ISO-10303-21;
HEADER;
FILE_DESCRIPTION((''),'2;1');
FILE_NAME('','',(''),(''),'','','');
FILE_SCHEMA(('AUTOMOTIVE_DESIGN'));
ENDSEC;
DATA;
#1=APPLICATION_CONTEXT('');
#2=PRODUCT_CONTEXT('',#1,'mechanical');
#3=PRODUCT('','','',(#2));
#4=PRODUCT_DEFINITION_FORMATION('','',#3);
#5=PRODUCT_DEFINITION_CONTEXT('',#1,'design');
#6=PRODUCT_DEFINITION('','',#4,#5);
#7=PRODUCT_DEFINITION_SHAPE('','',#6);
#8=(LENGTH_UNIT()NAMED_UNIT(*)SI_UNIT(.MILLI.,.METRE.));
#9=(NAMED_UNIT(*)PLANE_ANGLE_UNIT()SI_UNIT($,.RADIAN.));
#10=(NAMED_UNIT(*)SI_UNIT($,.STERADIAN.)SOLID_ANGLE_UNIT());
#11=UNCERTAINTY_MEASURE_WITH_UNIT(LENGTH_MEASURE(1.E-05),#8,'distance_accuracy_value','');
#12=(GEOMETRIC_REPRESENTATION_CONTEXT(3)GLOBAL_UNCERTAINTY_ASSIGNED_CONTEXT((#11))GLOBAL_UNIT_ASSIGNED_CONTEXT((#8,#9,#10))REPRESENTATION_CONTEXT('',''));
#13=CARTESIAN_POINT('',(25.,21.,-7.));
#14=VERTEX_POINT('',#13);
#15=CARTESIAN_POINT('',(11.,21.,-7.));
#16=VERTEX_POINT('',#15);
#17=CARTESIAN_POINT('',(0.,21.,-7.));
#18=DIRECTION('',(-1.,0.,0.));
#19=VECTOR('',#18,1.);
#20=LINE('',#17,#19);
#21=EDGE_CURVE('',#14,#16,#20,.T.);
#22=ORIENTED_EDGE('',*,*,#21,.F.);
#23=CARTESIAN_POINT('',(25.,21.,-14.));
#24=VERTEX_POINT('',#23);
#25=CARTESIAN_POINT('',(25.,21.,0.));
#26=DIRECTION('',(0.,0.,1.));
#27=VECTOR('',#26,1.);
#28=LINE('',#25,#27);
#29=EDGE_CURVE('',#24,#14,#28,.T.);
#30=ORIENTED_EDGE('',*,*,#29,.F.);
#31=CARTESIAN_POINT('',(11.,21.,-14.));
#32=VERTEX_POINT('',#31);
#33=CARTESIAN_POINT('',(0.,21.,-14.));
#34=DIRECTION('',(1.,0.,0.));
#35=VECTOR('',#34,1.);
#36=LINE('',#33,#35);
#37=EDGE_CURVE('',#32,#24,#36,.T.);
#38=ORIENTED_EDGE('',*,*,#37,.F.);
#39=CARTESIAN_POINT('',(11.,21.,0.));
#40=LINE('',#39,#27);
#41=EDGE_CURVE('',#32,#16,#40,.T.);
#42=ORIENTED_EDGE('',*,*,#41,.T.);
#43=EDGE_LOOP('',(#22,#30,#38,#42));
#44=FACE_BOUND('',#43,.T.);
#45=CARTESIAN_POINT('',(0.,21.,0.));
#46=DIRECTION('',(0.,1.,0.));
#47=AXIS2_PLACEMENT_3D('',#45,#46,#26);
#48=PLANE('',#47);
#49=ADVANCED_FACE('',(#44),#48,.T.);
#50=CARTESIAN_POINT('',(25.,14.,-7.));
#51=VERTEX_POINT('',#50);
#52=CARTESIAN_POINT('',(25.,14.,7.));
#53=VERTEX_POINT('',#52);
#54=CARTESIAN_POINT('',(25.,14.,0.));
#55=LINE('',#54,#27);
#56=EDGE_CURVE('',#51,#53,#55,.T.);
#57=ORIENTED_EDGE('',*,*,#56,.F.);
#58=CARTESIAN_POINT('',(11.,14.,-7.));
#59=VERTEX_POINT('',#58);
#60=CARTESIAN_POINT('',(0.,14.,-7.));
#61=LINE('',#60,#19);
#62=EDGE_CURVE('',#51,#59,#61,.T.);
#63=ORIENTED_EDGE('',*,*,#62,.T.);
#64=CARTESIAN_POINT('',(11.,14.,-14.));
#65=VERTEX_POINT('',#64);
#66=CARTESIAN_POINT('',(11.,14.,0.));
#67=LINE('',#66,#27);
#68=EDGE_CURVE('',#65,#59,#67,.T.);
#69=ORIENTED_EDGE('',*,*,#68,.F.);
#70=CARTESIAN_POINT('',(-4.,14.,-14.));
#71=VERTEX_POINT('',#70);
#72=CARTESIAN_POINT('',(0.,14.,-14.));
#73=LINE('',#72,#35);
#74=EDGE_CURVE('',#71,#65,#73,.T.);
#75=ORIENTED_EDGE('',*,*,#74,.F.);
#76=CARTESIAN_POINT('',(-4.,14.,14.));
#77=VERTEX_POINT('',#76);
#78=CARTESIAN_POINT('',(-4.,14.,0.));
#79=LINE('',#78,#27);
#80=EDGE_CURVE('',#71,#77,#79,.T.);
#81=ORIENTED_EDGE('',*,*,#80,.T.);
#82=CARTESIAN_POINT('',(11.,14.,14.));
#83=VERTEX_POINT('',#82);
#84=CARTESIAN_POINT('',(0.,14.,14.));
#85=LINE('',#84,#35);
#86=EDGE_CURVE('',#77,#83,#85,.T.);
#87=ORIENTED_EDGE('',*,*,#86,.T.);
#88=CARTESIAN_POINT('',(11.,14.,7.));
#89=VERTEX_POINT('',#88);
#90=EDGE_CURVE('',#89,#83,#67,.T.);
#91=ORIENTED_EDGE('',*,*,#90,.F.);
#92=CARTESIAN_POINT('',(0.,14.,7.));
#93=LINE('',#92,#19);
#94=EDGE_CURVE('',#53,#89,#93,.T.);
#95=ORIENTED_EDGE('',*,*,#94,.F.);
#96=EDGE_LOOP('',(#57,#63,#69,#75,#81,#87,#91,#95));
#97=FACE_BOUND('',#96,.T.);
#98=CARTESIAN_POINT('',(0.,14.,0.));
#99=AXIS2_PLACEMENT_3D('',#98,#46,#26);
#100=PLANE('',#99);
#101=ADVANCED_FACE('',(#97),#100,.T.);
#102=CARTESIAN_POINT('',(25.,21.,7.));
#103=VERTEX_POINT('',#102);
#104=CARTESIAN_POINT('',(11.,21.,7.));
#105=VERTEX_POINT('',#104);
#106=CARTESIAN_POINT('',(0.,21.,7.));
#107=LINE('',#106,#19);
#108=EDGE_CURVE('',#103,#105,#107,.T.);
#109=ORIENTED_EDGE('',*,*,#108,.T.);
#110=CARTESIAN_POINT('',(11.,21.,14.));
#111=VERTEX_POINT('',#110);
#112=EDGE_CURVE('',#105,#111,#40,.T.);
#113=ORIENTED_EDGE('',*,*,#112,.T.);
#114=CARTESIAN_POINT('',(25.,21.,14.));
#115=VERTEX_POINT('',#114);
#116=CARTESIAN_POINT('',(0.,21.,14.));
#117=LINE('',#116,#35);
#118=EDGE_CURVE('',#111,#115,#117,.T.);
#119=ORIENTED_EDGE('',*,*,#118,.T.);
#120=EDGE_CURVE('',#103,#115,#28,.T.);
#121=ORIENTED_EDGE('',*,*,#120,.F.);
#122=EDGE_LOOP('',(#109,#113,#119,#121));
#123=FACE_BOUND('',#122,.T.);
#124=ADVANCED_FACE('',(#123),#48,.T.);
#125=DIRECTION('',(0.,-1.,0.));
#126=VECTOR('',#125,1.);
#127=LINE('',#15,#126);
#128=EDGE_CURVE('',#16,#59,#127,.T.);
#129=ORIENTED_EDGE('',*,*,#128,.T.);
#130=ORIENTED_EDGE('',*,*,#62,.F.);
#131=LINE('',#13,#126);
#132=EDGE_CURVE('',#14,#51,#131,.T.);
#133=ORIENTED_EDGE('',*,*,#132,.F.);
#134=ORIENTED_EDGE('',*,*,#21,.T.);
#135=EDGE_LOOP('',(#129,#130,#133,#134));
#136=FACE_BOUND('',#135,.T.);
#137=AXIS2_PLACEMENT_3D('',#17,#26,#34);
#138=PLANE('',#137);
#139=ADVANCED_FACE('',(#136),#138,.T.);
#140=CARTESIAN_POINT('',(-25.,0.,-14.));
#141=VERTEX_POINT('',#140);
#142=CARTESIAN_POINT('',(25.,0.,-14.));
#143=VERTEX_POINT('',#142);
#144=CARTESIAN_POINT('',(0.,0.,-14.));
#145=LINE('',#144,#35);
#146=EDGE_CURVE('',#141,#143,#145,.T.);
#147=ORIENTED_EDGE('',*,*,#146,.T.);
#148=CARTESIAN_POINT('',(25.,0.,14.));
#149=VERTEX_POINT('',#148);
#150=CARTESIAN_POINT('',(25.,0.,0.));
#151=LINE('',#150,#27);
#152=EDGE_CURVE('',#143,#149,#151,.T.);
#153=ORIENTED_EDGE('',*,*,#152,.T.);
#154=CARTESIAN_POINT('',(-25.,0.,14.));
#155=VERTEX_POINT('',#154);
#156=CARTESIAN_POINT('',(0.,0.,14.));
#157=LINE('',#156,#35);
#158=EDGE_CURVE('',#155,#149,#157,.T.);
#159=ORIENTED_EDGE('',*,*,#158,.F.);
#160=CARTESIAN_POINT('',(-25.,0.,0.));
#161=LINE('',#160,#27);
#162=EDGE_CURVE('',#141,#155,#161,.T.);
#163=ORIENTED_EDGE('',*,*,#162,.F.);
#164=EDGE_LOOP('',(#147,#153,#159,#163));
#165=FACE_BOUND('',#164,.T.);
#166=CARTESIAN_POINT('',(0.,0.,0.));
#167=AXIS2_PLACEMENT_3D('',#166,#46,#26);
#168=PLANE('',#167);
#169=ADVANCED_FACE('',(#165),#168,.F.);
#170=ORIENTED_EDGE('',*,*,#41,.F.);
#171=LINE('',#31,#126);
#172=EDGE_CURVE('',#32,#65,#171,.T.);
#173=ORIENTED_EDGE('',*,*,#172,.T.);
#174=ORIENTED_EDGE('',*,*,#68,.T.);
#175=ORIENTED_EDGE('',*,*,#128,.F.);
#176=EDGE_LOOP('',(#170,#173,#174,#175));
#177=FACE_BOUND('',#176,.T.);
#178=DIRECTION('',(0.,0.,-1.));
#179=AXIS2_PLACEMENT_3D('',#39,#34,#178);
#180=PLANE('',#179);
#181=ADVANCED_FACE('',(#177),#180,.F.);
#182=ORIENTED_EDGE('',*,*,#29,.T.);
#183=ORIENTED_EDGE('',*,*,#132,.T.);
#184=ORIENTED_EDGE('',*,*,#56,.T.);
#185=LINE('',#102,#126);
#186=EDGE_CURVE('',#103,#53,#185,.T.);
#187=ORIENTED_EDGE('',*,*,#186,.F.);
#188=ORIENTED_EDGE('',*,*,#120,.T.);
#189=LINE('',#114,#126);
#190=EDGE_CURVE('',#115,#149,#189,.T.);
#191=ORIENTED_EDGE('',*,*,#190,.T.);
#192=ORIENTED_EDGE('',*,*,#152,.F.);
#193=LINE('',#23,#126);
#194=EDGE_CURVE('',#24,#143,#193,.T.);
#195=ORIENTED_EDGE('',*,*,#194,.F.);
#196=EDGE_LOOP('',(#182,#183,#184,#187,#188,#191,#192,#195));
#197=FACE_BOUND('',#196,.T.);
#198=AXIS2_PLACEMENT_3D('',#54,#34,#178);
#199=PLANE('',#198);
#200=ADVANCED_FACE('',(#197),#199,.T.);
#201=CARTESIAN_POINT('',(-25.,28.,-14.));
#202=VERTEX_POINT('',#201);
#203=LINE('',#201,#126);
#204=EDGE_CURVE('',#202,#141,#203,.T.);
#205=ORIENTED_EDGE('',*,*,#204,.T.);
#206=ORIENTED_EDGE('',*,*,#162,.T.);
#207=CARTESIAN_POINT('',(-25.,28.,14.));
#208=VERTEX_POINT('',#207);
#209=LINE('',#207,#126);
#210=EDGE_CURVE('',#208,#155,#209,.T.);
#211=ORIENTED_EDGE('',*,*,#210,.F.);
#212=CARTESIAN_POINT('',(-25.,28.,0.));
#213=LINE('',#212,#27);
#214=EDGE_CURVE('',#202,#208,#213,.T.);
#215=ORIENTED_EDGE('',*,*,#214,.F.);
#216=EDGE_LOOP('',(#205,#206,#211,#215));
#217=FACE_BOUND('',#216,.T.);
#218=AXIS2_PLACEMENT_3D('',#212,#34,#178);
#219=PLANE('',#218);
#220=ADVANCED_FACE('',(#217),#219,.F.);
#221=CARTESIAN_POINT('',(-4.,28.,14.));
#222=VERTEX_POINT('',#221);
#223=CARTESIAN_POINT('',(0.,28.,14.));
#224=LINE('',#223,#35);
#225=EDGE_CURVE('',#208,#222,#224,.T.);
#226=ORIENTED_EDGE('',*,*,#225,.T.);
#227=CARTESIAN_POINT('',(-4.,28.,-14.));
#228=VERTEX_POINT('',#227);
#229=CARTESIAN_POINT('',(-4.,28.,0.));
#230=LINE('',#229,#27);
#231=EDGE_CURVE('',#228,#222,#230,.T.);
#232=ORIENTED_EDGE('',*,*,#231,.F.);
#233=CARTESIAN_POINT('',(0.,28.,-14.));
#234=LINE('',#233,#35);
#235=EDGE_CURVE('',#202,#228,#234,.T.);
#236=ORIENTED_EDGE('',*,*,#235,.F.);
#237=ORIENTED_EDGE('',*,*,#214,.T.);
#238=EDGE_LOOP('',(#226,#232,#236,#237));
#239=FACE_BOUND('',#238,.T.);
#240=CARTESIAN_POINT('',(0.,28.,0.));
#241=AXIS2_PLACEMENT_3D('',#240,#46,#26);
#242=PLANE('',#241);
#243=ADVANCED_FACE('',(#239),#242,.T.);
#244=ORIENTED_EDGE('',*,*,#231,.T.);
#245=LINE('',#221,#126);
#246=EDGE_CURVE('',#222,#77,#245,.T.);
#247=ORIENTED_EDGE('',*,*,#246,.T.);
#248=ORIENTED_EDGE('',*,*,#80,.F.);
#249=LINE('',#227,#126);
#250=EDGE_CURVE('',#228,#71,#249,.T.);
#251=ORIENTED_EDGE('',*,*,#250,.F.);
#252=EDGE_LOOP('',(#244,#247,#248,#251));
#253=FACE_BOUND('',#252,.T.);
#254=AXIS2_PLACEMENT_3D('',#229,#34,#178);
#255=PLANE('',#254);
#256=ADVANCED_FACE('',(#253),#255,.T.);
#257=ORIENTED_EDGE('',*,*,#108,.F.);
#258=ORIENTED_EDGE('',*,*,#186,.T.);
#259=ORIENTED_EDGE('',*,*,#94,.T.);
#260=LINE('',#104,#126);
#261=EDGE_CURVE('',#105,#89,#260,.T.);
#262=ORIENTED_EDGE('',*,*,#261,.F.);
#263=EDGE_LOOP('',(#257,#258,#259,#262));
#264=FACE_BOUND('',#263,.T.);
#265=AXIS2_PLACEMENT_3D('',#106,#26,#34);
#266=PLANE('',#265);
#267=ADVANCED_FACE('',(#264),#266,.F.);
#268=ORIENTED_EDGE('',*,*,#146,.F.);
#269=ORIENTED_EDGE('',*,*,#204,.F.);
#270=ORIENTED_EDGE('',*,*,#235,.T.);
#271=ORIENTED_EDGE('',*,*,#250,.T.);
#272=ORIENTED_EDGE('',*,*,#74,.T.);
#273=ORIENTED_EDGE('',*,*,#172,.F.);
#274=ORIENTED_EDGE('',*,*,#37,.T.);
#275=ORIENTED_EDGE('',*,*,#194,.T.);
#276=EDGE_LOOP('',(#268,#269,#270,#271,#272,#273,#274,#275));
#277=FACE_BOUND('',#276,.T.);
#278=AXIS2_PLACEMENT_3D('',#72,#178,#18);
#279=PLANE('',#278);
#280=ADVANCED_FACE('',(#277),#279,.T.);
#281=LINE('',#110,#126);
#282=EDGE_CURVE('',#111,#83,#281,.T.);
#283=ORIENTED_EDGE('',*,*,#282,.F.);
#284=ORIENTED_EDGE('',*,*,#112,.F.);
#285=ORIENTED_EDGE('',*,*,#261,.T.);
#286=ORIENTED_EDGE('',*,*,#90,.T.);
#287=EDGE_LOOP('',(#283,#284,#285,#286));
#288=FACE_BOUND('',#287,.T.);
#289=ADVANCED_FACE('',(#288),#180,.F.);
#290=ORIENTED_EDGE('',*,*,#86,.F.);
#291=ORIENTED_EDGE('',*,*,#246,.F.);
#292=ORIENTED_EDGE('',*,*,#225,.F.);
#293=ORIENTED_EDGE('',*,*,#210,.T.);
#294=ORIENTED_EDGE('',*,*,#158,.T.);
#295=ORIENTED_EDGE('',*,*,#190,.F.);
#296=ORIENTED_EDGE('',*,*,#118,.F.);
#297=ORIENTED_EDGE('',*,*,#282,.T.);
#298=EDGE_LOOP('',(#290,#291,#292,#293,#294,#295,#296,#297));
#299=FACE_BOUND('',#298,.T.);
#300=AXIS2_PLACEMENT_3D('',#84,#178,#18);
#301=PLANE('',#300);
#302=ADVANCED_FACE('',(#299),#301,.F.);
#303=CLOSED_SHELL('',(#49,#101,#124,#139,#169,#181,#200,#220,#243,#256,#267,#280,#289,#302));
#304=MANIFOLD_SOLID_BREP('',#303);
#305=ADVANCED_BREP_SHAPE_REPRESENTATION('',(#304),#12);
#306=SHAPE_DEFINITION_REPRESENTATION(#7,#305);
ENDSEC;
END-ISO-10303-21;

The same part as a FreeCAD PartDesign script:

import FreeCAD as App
import Part
import Sketcher
from FreeCAD import Vector
Q = App.Units.Quantity

doc = App.newDocument("Part")
params = doc.addObject("Spreadsheet::Sheet", "Params")
for row, (alias, value) in enumerate([
    ("sketch1_width", "15 mm"),
    ("sketch1_width2", "14 mm"),
    ("sketch1_height", "28 mm"),
    ("pad1_length", "14 mm"),
    ("sketch2_width", "21 mm"),
    ("sketch2_height", "28 mm"),
    ("pad2_length", "28 mm"),
    ("sketch3_width", "14 mm"),
    ("sketch3_height", "7 mm"),
    ("pad3_length", "21 mm"),
], start=1):
    params.set(f"A{row}", alias)
    params.set(f"B{row}", "=" + value)
    params.setAlias(f"B{row}", alias)

body = doc.addObject("PartDesign::Body", "Body")

# Sketch on XZ plane
sketch1 = doc.addObject("Sketcher::SketchObject", "Sketch")
body.addObject(sketch1)
sketch1.AttachmentSupport = (doc.XZ_Plane, [""])
sketch1.MapMode = "FlatFace"
sketch1.addGeometry(Part.LineSegment(Vector(11, -14, 0), Vector(-4, -14, 0)), False)
sketch1.addGeometry(Part.LineSegment(Vector(-4, -14, 0), Vector(-4, 14, 0)), False)
sketch1.addGeometry(Part.LineSegment(Vector(-4, 14, 0), Vector(11, 14, 0)), False)
sketch1.addGeometry(Part.LineSegment(Vector(11, 14, 0), Vector(11, 7, 0)), False)
sketch1.addGeometry(Part.LineSegment(Vector(11, 7, 0), Vector(25, 7, 0)), False)
sketch1.addGeometry(Part.LineSegment(Vector(25, 7, 0), Vector(25, -7, 0)), False)
sketch1.addGeometry(Part.LineSegment(Vector(25, -7, 0), Vector(11, -7, 0)), False)
sketch1.addGeometry(Part.LineSegment(Vector(11, -7, 0), Vector(11, -14, 0)), False)
sketch1.addConstraint(Sketcher.Constraint("Coincident", 0, 2, 1, 1))
sketch1.addConstraint(Sketcher.Constraint("Coincident", 1, 2, 2, 1))
sketch1.addConstraint(Sketcher.Constraint("Coincident", 2, 2, 3, 1))
sketch1.addConstraint(Sketcher.Constraint("Coincident", 3, 2, 4, 1))
sketch1.addConstraint(Sketcher.Constraint("Coincident", 4, 2, 5, 1))
sketch1.addConstraint(Sketcher.Constraint("Coincident", 5, 2, 6, 1))
sketch1.addConstraint(Sketcher.Constraint("Coincident", 6, 2, 7, 1))
sketch1.addConstraint(Sketcher.Constraint("Coincident", 7, 2, 0, 1))
sketch1.addConstraint(Sketcher.Constraint("Horizontal", 0))
sketch1.addConstraint(Sketcher.Constraint("Vertical", 1))
sketch1.addConstraint(Sketcher.Constraint("Horizontal", 2))
sketch1.addConstraint(Sketcher.Constraint("Vertical", 3))
sketch1.addConstraint(Sketcher.Constraint("Horizontal", 4))
sketch1.addConstraint(Sketcher.Constraint("Vertical", 5))
sketch1.addConstraint(Sketcher.Constraint("Horizontal", 6))
sketch1.addConstraint(Sketcher.Constraint("Vertical", 7))
sketch1.addConstraint(Sketcher.Constraint("Symmetric", 3, 2, 6, 2, -1))
sketch1.addConstraint(Sketcher.Constraint("Equal", 6, 5))
sketch1.addConstraint(Sketcher.Constraint("Equal", 3, 7))
sketch1.addConstraint(Sketcher.Constraint("DistanceX", 0, 2, 0, 1, Q("15 mm")))
sketch1.addConstraint(Sketcher.Constraint("DistanceX", 4, 1, 4, 2, Q("14 mm")))
sketch1.addConstraint(Sketcher.Constraint("DistanceY", 1, 1, 1, 2, Q("28 mm")))
sketch1.addConstraint(Sketcher.Constraint("DistanceX", 0, 2, -1, 1, Q("4 mm")))
sketch1.setExpression("Constraints[19]", "Params.sketch1_width")
sketch1.setExpression("Constraints[20]", "Params.sketch1_width2")
sketch1.setExpression("Constraints[21]", "Params.sketch1_height")
pad1 = doc.addObject("PartDesign::Pad", "Pad")
body.addObject(pad1)
pad1.Profile = sketch1
pad1.setExpression("Length", "Params.pad1_length")
pad1.Reversed = True

# Sketch on XZ plane
sketch2 = doc.addObject("Sketcher::SketchObject", "Sketch001")
body.addObject(sketch2)
sketch2.AttachmentSupport = (doc.XZ_Plane, [""])
sketch2.MapMode = "FlatFace"
sketch2.addGeometry(Part.LineSegment(Vector(-25, -14, 0), Vector(-25, 14, 0)), False)
sketch2.addGeometry(Part.LineSegment(Vector(-25, 14, 0), Vector(-4, 14, 0)), False)
sketch2.addGeometry(Part.LineSegment(Vector(-4, 14, 0), Vector(-4, -14, 0)), False)
sketch2.addGeometry(Part.LineSegment(Vector(-4, -14, 0), Vector(-25, -14, 0)), False)
sketch2.addConstraint(Sketcher.Constraint("Coincident", 0, 2, 1, 1))
sketch2.addConstraint(Sketcher.Constraint("Coincident", 1, 2, 2, 1))
sketch2.addConstraint(Sketcher.Constraint("Coincident", 2, 2, 3, 1))
sketch2.addConstraint(Sketcher.Constraint("Coincident", 3, 2, 0, 1))
sketch2.addConstraint(Sketcher.Constraint("Vertical", 0))
sketch2.addConstraint(Sketcher.Constraint("Horizontal", 1))
sketch2.addConstraint(Sketcher.Constraint("Vertical", 2))
sketch2.addConstraint(Sketcher.Constraint("Horizontal", 3))
sketch2.addConstraint(Sketcher.Constraint("DistanceX", 1, 1, 1, 2, Q("21 mm")))
sketch2.addConstraint(Sketcher.Constraint("DistanceY", 0, 1, 0, 2, Q("28 mm")))
sketch2.addConstraint(Sketcher.Constraint("DistanceX", 0, 2, -1, 1, Q("25 mm")))
sketch2.addConstraint(Sketcher.Constraint("DistanceY", -1, 1, 0, 2, Q("14 mm")))
sketch2.setExpression("Constraints[8]", "Params.sketch2_width")
sketch2.setExpression("Constraints[9]", "Params.sketch2_height")
pad2 = doc.addObject("PartDesign::Pad", "Pad001")
body.addObject(pad2)
pad2.Profile = sketch2
pad2.setExpression("Length", "Params.pad2_length")
pad2.Reversed = True

# Sketch on XZ plane
sketch3 = doc.addObject("Sketcher::SketchObject", "Sketch002")
body.addObject(sketch3)
sketch3.AttachmentSupport = (doc.XZ_Plane, [""])
sketch3.MapMode = "FlatFace"
sketch3.addGeometry(Part.LineSegment(Vector(11, 7, 0), Vector(11, 14, 0)), False)
sketch3.addGeometry(Part.LineSegment(Vector(11, 14, 0), Vector(25, 14, 0)), False)
sketch3.addGeometry(Part.LineSegment(Vector(25, 14, 0), Vector(25, 7, 0)), False)
sketch3.addGeometry(Part.LineSegment(Vector(25, 7, 0), Vector(11, 7, 0)), False)
sketch3.addGeometry(Part.LineSegment(Vector(11, -14, 0), Vector(11, -7, 0)), False)
sketch3.addGeometry(Part.LineSegment(Vector(11, -7, 0), Vector(25, -7, 0)), False)
sketch3.addGeometry(Part.LineSegment(Vector(25, -7, 0), Vector(25, -14, 0)), False)
sketch3.addGeometry(Part.LineSegment(Vector(25, -14, 0), Vector(11, -14, 0)), False)
sketch3.addConstraint(Sketcher.Constraint("Coincident", 0, 2, 1, 1))
sketch3.addConstraint(Sketcher.Constraint("Coincident", 1, 2, 2, 1))
sketch3.addConstraint(Sketcher.Constraint("Coincident", 2, 2, 3, 1))
sketch3.addConstraint(Sketcher.Constraint("Coincident", 3, 2, 0, 1))
sketch3.addConstraint(Sketcher.Constraint("Coincident", 4, 2, 5, 1))
sketch3.addConstraint(Sketcher.Constraint("Coincident", 5, 2, 6, 1))
sketch3.addConstraint(Sketcher.Constraint("Coincident", 6, 2, 7, 1))
sketch3.addConstraint(Sketcher.Constraint("Coincident", 7, 2, 4, 1))
sketch3.addConstraint(Sketcher.Constraint("Vertical", 0))
sketch3.addConstraint(Sketcher.Constraint("Horizontal", 1))
sketch3.addConstraint(Sketcher.Constraint("Vertical", 2))
sketch3.addConstraint(Sketcher.Constraint("Horizontal", 3))
sketch3.addConstraint(Sketcher.Constraint("Vertical", 4))
sketch3.addConstraint(Sketcher.Constraint("Horizontal", 5))
sketch3.addConstraint(Sketcher.Constraint("Vertical", 6))
sketch3.addConstraint(Sketcher.Constraint("Horizontal", 7))
sketch3.addConstraint(Sketcher.Constraint("Symmetric", 3, 2, 4, 2, -1))
sketch3.addConstraint(Sketcher.Constraint("Symmetric", 1, 2, 6, 2, -1))
sketch3.addConstraint(Sketcher.Constraint("DistanceX", 1, 1, 1, 2, Q("14 mm")))
sketch3.addConstraint(Sketcher.Constraint("DistanceY", 0, 1, 0, 2, Q("7 mm")))
sketch3.addConstraint(Sketcher.Constraint("DistanceX", -1, 1, 0, 2, Q("11 mm")))
sketch3.addConstraint(Sketcher.Constraint("DistanceY", -1, 1, 0, 2, Q("14 mm")))
sketch3.setExpression("Constraints[18]", "Params.sketch3_width")
sketch3.setExpression("Constraints[19]", "Params.sketch3_height")
pad3 = doc.addObject("PartDesign::Pad", "Pad002")
body.addObject(pad3)
pad3.Profile = sketch3
pad3.setExpression("Length", "Params.pad3_length")
pad3.Reversed = True

doc.recompute()
